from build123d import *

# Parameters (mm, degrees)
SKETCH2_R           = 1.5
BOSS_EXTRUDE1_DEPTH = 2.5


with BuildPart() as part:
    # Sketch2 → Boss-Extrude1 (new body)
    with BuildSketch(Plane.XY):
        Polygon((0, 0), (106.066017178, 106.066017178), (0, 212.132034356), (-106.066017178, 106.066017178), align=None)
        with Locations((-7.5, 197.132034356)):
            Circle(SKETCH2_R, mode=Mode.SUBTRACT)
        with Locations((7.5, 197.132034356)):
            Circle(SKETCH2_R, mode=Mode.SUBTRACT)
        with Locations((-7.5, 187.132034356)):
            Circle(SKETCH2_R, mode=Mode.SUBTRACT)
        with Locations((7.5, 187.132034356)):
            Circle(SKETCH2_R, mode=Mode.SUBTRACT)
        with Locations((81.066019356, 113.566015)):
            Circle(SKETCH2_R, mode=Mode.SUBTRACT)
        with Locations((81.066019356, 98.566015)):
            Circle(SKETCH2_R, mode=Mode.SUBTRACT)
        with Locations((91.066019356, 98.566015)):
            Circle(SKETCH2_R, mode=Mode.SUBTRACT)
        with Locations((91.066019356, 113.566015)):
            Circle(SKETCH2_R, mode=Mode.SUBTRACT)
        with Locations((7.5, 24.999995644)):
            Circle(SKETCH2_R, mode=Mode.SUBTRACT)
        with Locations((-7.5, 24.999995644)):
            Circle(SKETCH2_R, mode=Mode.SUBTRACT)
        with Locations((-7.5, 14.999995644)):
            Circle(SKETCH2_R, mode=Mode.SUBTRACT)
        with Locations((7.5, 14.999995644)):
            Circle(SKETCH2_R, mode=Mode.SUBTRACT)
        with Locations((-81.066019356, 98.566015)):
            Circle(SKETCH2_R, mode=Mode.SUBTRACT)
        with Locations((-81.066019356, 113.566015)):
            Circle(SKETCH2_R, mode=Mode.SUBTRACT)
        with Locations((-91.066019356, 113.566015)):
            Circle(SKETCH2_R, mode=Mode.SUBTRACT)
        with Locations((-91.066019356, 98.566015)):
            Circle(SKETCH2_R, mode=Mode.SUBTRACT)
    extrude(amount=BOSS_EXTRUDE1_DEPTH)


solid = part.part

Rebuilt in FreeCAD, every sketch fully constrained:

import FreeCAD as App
import Part
import Sketcher
Q = App.Units.Quantity

doc = App.newDocument("Part")
body = doc.addObject("PartDesign::Body", "Body")

# Sketch on XY plane
sketch1 = body.newObject("Sketcher::SketchObject", "Sketch")
sketch1.AttachmentSupport = (doc.getObject("XY_Plane"), [""])
sketch1.MapMode = "FlatFace"
sketch1.addGeometry(Part.LineSegment(App.Vector(0, 0, 0), App.Vector(106.1, 106.1, 0)), False)
sketch1.addGeometry(Part.LineSegment(App.Vector(106.1, 106.1, 0), App.Vector(0, 212.1, 0)), False)
sketch1.addGeometry(Part.LineSegment(App.Vector(0, 212.1, 0), App.Vector(-106.1, 106.1, 0)), False)
sketch1.addGeometry(Part.LineSegment(App.Vector(-106.1, 106.1, 0), App.Vector(0, 0, 0)), False)
sketch1.addGeometry(Part.Circle(App.Vector(-7.5, 15, 0), App.Vector(0, 0, 1), 1.5), False)
sketch1.addGeometry(Part.Circle(App.Vector(-7.5, 25, 0), App.Vector(0, 0, 1), 1.5), False)
sketch1.addGeometry(Part.Circle(App.Vector(-91.1, 98.6, 0), App.Vector(0, 0, 1), 1.5), False)
sketch1.addGeometry(Part.Circle(App.Vector(-81.1, 98.6, 0), App.Vector(0, 0, 1), 1.5), False)
sketch1.addGeometry(Part.Circle(App.Vector(7.5, 15, 0), App.Vector(0, 0, 1), 1.5), False)
sketch1.addGeometry(Part.Circle(App.Vector(7.5, 25, 0), App.Vector(0, 0, 1), 1.5), False)
sketch1.addGeometry(Part.Circle(App.Vector(81.1, 98.6, 0), App.Vector(0, 0, 1), 1.5), False)
sketch1.addGeometry(Part.Circle(App.Vector(91.1, 98.6, 0), App.Vector(0, 0, 1), 1.5), False)
sketch1.addGeometry(Part.Circle(App.Vector(-91.1, 113.6, 0), App.Vector(0, 0, 1), 1.5), False)
sketch1.addGeometry(Part.Circle(App.Vector(-81.1, 113.6, 0), App.Vector(0, 0, 1), 1.5), False)
sketch1.addGeometry(Part.Circle(App.Vector(-7.5, 187.1, 0), App.Vector(0, 0, 1), 1.5), False)
sketch1.addGeometry(Part.Circle(App.Vector(-7.5, 197.1, 0), App.Vector(0, 0, 1), 1.5), False)
sketch1.addGeometry(Part.Circle(App.Vector(81.1, 113.6, 0), App.Vector(0, 0, 1), 1.5), False)
sketch1.addGeometry(Part.Circle(App.Vector(91.1, 113.6, 0), App.Vector(0, 0, 1), 1.5), False)
sketch1.addGeometry(Part.Circle(App.Vector(7.5, 187.1, 0), App.Vector(0, 0, 1), 1.5), False)
sketch1.addGeometry(Part.Circle(App.Vector(7.5, 197.1, 0), App.Vector(0, 0, 1), 1.5), False)
sketch1.addConstraint(Sketcher.Constraint("Coincident", 0, 2, 1, 1))
sketch1.addConstraint(Sketcher.Constraint("Coincident", 1, 2, 2, 1))
sketch1.addConstraint(Sketcher.Constraint("Coincident", 2, 2, 3, 1))
sketch1.addConstraint(Sketcher.Constraint("Coincident", 3, 2, 0, 1))
sketch1.addConstraint(Sketcher.Constraint("Coincident", 3, 2, -1, 1))
sketch1.addConstraint(Sketcher.Constraint("Equal", 4, 5))
sketch1.addConstraint(Sketcher.Constraint("Equal", 5, 6))
sketch1.addConstraint(Sketcher.Constraint("Equal", 6, 7))
sketch1.addConstraint(Sketcher.Constraint("Equal", 7, 8))
sketch1.addConstraint(Sketcher.Constraint("Equal", 8, 9))
sketch1.addConstraint(Sketcher.Constraint("Equal", 9, 10))
sketch1.addConstraint(Sketcher.Constraint("Equal", 10, 11))
sketch1.addConstraint(Sketcher.Constraint("Equal", 11, 12))
sketch1.addConstraint(Sketcher.Constraint("Equal", 12, 13))
sketch1.addConstraint(Sketcher.Constraint("Equal", 13, 14))
sketch1.addConstraint(Sketcher.Constraint("Equal", 14, 15))
sketch1.addConstraint(Sketcher.Constraint("Equal", 15, 16))
sketch1.addConstraint(Sketcher.Constraint("Equal", 16, 17))
sketch1.addConstraint(Sketcher.Constraint("Equal", 17, 18))
sketch1.addConstraint(Sketcher.Constraint("Equal", 18, 19))
sketch1.addConstraint(Sketcher.Constraint("Symmetric", 4, 3, 8, 3, -2))
sketch1.addConstraint(Sketcher.Constraint("Symmetric", 5, 3, 9, 3, -2))
sketch1.addConstraint(Sketcher.Constraint("Symmetric", 7, 3, 10, 3, -2))
sketch1.addConstraint(Sketcher.Constraint("Symmetric", 6, 3, 11, 3, -2))
sketch1.addConstraint(Sketcher.Constraint("Symmetric", 13, 3, 16, 3, -2))
sketch1.addConstraint(Sketcher.Constraint("Symmetric", 12, 3, 17, 3, -2))
sketch1.addConstraint(Sketcher.Constraint("Symmetric", 14, 3, 18, 3, -2))
sketch1.addConstraint(Sketcher.Constraint("Symmetric", 15, 3, 19, 3, -2))
sketch1.addConstraint(Sketcher.Constraint("Symmetric", 0, 2, 2, 2, -2))
sketch1.addConstraint(Sketcher.Constraint("PointOnObject", 1, 2, -2))
sketch1.addConstraint(Sketcher.Constraint("Perpendicular", 0, 1))
sketch1.addConstraint(Sketcher.Constraint("Perpendicular", 1, 2))
sketch1.addConstraint(Sketcher.Constraint("Horizontal", 6, 3, 7, 3))
sketch1.addConstraint(Sketcher.Constraint("Horizontal", 12, 3, 13, 3))
sketch1.addConstraint(Sketcher.Constraint("Vertical", 4, 3, 5, 3))
sketch1.addConstraint(Sketcher.Constraint("Vertical", 6, 3, 12, 3))
sketch1.addConstraint(Sketcher.Constraint("Vertical", 7, 3, 13, 3))
sketch1.addConstraint(Sketcher.Constraint("Vertical", 5, 3, 14, 3))
sketch1.addConstraint(Sketcher.Constraint("Vertical", 14, 3, 15, 3))
sketch1.addConstraint(Sketcher.Constraint("Diameter", 4, Q("3 mm")))
sketch1.addConstraint(Sketcher.Constraint("Distance", 0, Q("150 mm")))
sketch1.addConstraint(Sketcher.Constraint("DistanceY", 4, 3, 5, 3, Q("10 mm")))
sketch1.addConstraint(Sketcher.Constraint("DistanceX", 6, 3, 7, 3, Q("10 mm")))
sketch1.addConstraint(Sketcher.Constraint("DistanceX", 4, 3, 8, 3, Q("15 mm")))
sketch1.addConstraint(Sketcher.Constraint("DistanceY", 6, 3, 12, 3, Q("15 mm")))
sketch1.addConstraint(Sketcher.Constraint("DistanceY", 14, 3, 15, 3, Q("10 mm")))
sketch1.addConstraint(Sketcher.Constraint("DistanceY", 15, 3, 1, 2, Q("15 mm")))
sketch1.addConstraint(Sketcher.Constraint("DistanceX", 6, 3, -1, 1, Q("91.066019 mm")))
sketch1.addConstraint(Sketcher.Constraint("DistanceY", 5, 3, 6, 3, Q("73.566019 mm")))
sketch1.addConstraint(Sketcher.Constraint("DistanceY", 13, 3, 14, 3, Q("73.566019 mm")))
pad1 = body.newObject("PartDesign::Pad", "Pad")
pad1.Profile = sketch1
pad1.Length = 2.5

doc.recompute()
